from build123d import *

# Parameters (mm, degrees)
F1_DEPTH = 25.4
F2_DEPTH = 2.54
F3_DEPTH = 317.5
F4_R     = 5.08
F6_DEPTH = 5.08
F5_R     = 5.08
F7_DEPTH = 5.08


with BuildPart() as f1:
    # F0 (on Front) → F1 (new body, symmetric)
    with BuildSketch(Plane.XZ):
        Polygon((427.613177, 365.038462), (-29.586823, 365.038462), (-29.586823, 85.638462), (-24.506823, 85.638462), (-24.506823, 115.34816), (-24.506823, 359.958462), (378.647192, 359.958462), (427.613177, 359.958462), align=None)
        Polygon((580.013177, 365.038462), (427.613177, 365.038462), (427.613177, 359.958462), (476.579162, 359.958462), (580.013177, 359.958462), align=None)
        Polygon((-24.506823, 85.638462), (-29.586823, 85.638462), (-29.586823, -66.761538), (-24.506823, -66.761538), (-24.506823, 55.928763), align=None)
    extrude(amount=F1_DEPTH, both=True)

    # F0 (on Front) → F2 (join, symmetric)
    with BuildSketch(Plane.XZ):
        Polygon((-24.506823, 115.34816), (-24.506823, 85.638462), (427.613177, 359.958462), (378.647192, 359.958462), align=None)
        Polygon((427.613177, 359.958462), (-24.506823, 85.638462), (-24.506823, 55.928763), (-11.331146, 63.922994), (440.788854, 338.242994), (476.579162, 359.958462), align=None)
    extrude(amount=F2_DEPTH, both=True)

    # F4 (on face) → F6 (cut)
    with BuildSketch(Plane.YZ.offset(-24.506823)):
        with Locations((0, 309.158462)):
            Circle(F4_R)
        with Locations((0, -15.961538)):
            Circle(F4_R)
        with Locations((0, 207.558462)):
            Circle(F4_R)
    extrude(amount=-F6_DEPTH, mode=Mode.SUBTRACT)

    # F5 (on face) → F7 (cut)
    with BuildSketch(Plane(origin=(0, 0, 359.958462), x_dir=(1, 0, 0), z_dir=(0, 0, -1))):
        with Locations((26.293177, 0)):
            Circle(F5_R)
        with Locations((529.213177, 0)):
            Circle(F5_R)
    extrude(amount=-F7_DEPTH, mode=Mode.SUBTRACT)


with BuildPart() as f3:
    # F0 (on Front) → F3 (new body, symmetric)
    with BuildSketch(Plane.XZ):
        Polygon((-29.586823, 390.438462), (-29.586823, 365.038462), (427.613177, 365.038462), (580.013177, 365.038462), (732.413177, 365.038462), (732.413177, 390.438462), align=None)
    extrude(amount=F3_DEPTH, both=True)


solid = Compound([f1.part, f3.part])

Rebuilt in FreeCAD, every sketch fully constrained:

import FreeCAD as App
import Part
import Sketcher
Q = App.Units.Quantity

doc = App.newDocument("Part")
params = doc.addObject("Spreadsheet::Sheet", "Params")
for row, (alias, value) in enumerate([
    ("sketch1_width", "24 in"),
    ("sketch1_height", "17 in"),
    ("sketch1_width2", "0.2 in"),
    ("pad1_length", "2 in"),
    ("pad2_length", "0.2 in"),
    ("sketch3_diameter", "0.4 in"),
    ("pocket1_length", "0.2 in"),
    ("sketch4_diameter", "0.4 in"),
    ("pocket2_length", "0.2 in"),
    ("sketch5_width", "30 in"),
    ("sketch5_height", "1 in"),
    ("pad3_length", "25 in"),
], start=1):
    params.set(f"A{row}", alias)
    params.set(f"B{row}", "=" + value)
    params.setAlias(f"B{row}", alias)

body = doc.addObject("PartDesign::Body", "Body")

# Sketch on XZ plane
sketch1 = body.newObject("Sketcher::SketchObject", "Sketch")
sketch1.AttachmentSupport = (doc.getObject("XZ_Plane"), [""])
sketch1.MapMode = "FlatFace"
sketch1.addGeometry(Part.LineSegment(App.Vector(-30, 365, 0), App.Vector(-30, -67, 0)), False)
sketch1.addGeometry(Part.LineSegment(App.Vector(-30, -67, 0), App.Vector(-25, -67, 0)), False)
sketch1.addGeometry(Part.LineSegment(App.Vector(-25, -67, 0), App.Vector(-25, 360, 0)), False)
sketch1.addGeometry(Part.LineSegment(App.Vector(-25, 360, 0), App.Vector(580, 360, 0)), False)
sketch1.addGeometry(Part.LineSegment(App.Vector(580, 360, 0), App.Vector(580, 365, 0)), False)
sketch1.addGeometry(Part.LineSegment(App.Vector(580, 365, 0), App.Vector(-30, 365, 0)), False)
sketch1.addConstraint(Sketcher.Constraint("Coincident", 0, 2, 1, 1))
sketch1.addConstraint(Sketcher.Constraint("Coincident", 1, 2, 2, 1))
sketch1.addConstraint(Sketcher.Constraint("Coincident", 2, 2, 3, 1))
sketch1.addConstraint(Sketcher.Constraint("Coincident", 3, 2, 4, 1))
sketch1.addConstraint(Sketcher.Constraint("Coincident", 4, 2, 5, 1))
sketch1.addConstraint(Sketcher.Constraint("Coincident", 5, 2, 0, 1))
sketch1.addConstraint(Sketcher.Constraint("Vertical", 0))
sketch1.addConstraint(Sketcher.Constraint("Horizontal", 1))
sketch1.addConstraint(Sketcher.Constraint("Vertical", 2))
sketch1.addConstraint(Sketcher.Constraint("Horizontal", 3))
sketch1.addConstraint(Sketcher.Constraint("Vertical", 4))
sketch1.addConstraint(Sketcher.Constraint("Horizontal", 5))
sketch1.addConstraint(Sketcher.Constraint("Equal", 1, 4))
sketch1.addConstraint(Sketcher.Constraint("DistanceX", 5, 2, 5, 1, Q("24 in")))
sketch1.addConstraint(Sketcher.Constraint("DistanceY", 0, 2, 0, 1, Q("17 in")))
sketch1.addConstraint(Sketcher.Constraint("DistanceX", 1, 1, 1, 2, Q("0.2 in")))
sketch1.addConstraint(Sketcher.Constraint("DistanceY", 0, 2, -1, 1, Q("66.761538 mm")))
sketch1.addConstraint(Sketcher.Constraint("DistanceX", 0, 2, -1, 1, Q("29.586823 mm")))
sketch1.setExpression("Constraints[13]", "Params.sketch1_width")
sketch1.setExpression("Constraints[14]", "Params.sketch1_height")
sketch1.setExpression("Constraints[15]", "Params.sketch1_width2")
pad1 = body.newObject("PartDesign::Pad", "Pad")
pad1.Profile = sketch1
pad1.setExpression("Length", "Params.pad1_length")
pad1.Midplane = True

# Sketch on XZ plane
sketch2 = body.newObject("Sketcher::SketchObject", "Sketch001")
sketch2.AttachmentSupport = (doc.getObject("XZ_Plane"), [""])
sketch2.MapMode = "FlatFace"
sketch2.addGeometry(Part.LineSegment(App.Vector(-25, 115, 0), App.Vector(-25, 56, 0)), False)
sketch2.addGeometry(Part.LineSegment(App.Vector(-25, 56, 0), App.Vector(-11, 64, 0)), False)
sketch2.addGeometry(Part.LineSegment(App.Vector(-11, 64, 0), App.Vector(441, 338, 0)), False)
sketch2.addGeometry(Part.LineSegment(App.Vector(441, 338, 0), App.Vector(477, 360, 0)), False)
sketch2.addGeometry(Part.LineSegment(App.Vector(477, 360, 0), App.Vector(379, 360, 0)), False)
sketch2.addGeometry(Part.LineSegment(App.Vector(379, 360, 0), App.Vector(-25, 115, 0)), False)
sketch2.addConstraint(Sketcher.Constraint("Coincident", 0, 2, 1, 1))
sketch2.addConstraint(Sketcher.Constraint("Coincident", 1, 2, 2, 1))
sketch2.addConstraint(Sketcher.Constraint("Coincident", 2, 2, 3, 1))
sketch2.addConstraint(Sketcher.Constraint("Coincident", 3, 2, 4, 1))
sketch2.addConstraint(Sketcher.Constraint("Coincident", 4, 2, 5, 1))
sketch2.addConstraint(Sketcher.Constraint("Coincident", 5, 2, 0, 1))
sketch2.addConstraint(Sketcher.Constraint("Vertical", 0))
sketch2.addConstraint(Sketcher.Constraint("Horizontal", 4))
sketch2.addConstraint(Sketcher.Constraint("Parallel", 1, 2))
sketch2.addConstraint(Sketcher.Constraint("Parallel", 2, 3))
sketch2.addConstraint(Sketcher.Constraint("Parallel", 3, 5))
sketch2.addConstraint(Sketcher.Constraint("DistanceX", 1, 2, 2, 2, Q("17.8 in")))
sketch2.addConstraint(Sketcher.Constraint("DistanceY", 1, 2, 2, 2, Q("10.8 in")))
sketch2.addConstraint(Sketcher.Constraint("DistanceX", 4, 2, 4, 1, Q("97.93197 mm")))
sketch2.addConstraint(Sketcher.Constraint("DistanceY", 0, 2, 3, 2, Q("304.029699 mm")))
sketch2.addConstraint(Sketcher.Constraint("DistanceX", -1, 1, 3, 2, Q("476.579162 mm")))
sketch2.addConstraint(Sketcher.Constraint("DistanceY", -1, 1, 3, 2, Q("359.958462 mm")))
sketch2.addConstraint(Sketcher.Constraint("DistanceY", 0, 2, 1, 2, Q("7.994231 mm")))
pad2 = body.newObject("PartDesign::Pad", "Pad001")
pad2.Profile = sketch2
pad2.setExpression("Length", "Params.pad2_length")
pad2.Midplane = True

# Sketch on YZ plane
sketch3 = body.newObject("Sketcher::SketchObject", "Sketch002")
sketch3.AttachmentSupport = (doc.getObject("YZ_Plane"), [""])
sketch3.MapMode = "FlatFace"
sketch3.AttachmentOffset = App.Placement(App.Vector(0, 0, -24.506823), App.Rotation())
sketch3.addGeometry(Part.Circle(App.Vector(0, 309, 0), App.Vector(0, 0, 1), 5), False)
sketch3.addGeometry(Part.Circle(App.Vector(0, -16, 0), App.Vector(0, 0, 1), 5), False)
sketch3.addGeometry(Part.Circle(App.Vector(0, 208, 0), App.Vector(0, 0, 1), 5), False)
sketch3.addConstraint(Sketcher.Constraint("Equal", 0, 1))
sketch3.addConstraint(Sketcher.Constraint("Equal", 1, 2))
sketch3.addConstraint(Sketcher.Constraint("PointOnObject", 0, 3, -2))
sketch3.addConstraint(Sketcher.Constraint("PointOnObject", 1, 3, -2))
sketch3.addConstraint(Sketcher.Constraint("PointOnObject", 2, 3, -2))
sketch3.addConstraint(Sketcher.Constraint("Diameter", 0, Q("0.4 in")))
sketch3.addConstraint(Sketcher.Constraint("DistanceY", 2, 3, 0, 3, Q("4 in")))
sketch3.addConstraint(Sketcher.Constraint("DistanceY", 1, 3, 0, 3, Q("12.8 in")))
sketch3.addConstraint(Sketcher.Constraint("DistanceY", -1, 1, 0, 3, Q("309.158462 mm")))
sketch3.setExpression("Constraints[5]", "Params.sketch3_diameter")
pocket1 = body.newObject("PartDesign::Pocket", "Pocket")
pocket1.Profile = sketch3
pocket1.setExpression("Length", "Params.pocket1_length")

# Sketch on XY plane
sketch4 = body.newObject("Sketcher::SketchObject", "Sketch003")
sketch4.AttachmentSupport = (doc.getObject("XY_Plane"), [""])
sketch4.MapMode = "FlatFace"
sketch4.AttachmentOffset = App.Placement(App.Vector(0, 0, 359.958462), App.Rotation())
sketch4.addGeometry(Part.Circle(App.Vector(26, 0, 0), App.Vector(0, 0, 1), 5), False)
sketch4.addGeometry(Part.Circle(App.Vector(529, 0, 0), App.Vector(0, 0, 1), 5), False)
sketch4.addConstraint(Sketcher.Constraint("Equal", 0, 1))
sketch4.addConstraint(Sketcher.Constraint("PointOnObject", 0, 3, -1))
sketch4.addConstraint(Sketcher.Constraint("PointOnObject", 1, 3, -1))
sketch4.addConstraint(Sketcher.Constraint("Diameter", 0, Q("0.4 in")))
sketch4.addConstraint(Sketcher.Constraint("DistanceX", 0, 3, 1, 3, Q("19.8 in")))
sketch4.addConstraint(Sketcher.Constraint("DistanceX", -1, 1, 0, 3, Q("26.293177 mm")))
sketch4.setExpression("Constraints[3]", "Params.sketch4_diameter")
pocket2 = body.newObject("PartDesign::Pocket", "Pocket001")
pocket2.Profile = sketch4
pocket2.setExpression("Length", "Params.pocket2_length")
pocket2.Reversed = True
body2 = doc.addObject("PartDesign::Body", "Body001")

# Sketch on XZ plane
sketch5 = body2.newObject("Sketcher::SketchObject", "Sketch004")
sketch5.AttachmentSupport = (doc.getObject("XZ_Plane001"), [""])
sketch5.MapMode = "FlatFace"
sketch5.addGeometry(Part.LineSegment(App.Vector(-30, 390, 0), App.Vector(-30, 365, 0)), False)
sketch5.addGeometry(Part.LineSegment(App.Vector(-30, 365, 0), App.Vector(732, 365, 0)), False)
sketch5.addGeometry(Part.LineSegment(App.Vector(732, 365, 0), App.Vector(732, 390, 0)), False)
sketch5.addGeometry(Part.LineSegment(App.Vector(732, 390, 0), App.Vector(-30, 390, 0)), False)
sketch5.addConstraint(Sketcher.Constraint("Coincident", 0, 2, 1, 1))
sketch5.addConstraint(Sketcher.Constraint("Coincident", 1, 2, 2, 1))
sketch5.addConstraint(Sketcher.Constraint("Coincident", 2, 2, 3, 1))
sketch5.addConstraint(Sketcher.Constraint("Coincident", 3, 2, 0, 1))
sketch5.addConstraint(Sketcher.Constraint("Vertical", 0))
sketch5.addConstraint(Sketcher.Constraint("Horizontal", 1))
sketch5.addConstraint(Sketcher.Constraint("Vertical", 2))
sketch5.addConstraint(Sketcher.Constraint("Horizontal", 3))
sketch5.addConstraint(Sketcher.Constraint("DistanceX", 1, 1, 1, 2, Q("30 in")))
sketch5.addConstraint(Sketcher.Constraint("DistanceY", 0, 2, 0, 1, Q("1 in")))
sketch5.addConstraint(Sketcher.Constraint("DistanceY", -1, 1, 0, 2, Q("365.038462 mm")))
sketch5.addConstraint(Sketcher.Constraint("DistanceX", 0, 2, -1, 1, Q("29.586823 mm")))
sketch5.setExpression("Constraints[8]", "Params.sketch5_width")
sketch5.setExpression("Constraints[9]", "Params.sketch5_height")
pad3 = body2.newObject("PartDesign::Pad", "Pad002")
pad3.Profile = sketch5
pad3.setExpression("Length", "Params.pad3_length")
pad3.Midplane = True

doc.recompute()
